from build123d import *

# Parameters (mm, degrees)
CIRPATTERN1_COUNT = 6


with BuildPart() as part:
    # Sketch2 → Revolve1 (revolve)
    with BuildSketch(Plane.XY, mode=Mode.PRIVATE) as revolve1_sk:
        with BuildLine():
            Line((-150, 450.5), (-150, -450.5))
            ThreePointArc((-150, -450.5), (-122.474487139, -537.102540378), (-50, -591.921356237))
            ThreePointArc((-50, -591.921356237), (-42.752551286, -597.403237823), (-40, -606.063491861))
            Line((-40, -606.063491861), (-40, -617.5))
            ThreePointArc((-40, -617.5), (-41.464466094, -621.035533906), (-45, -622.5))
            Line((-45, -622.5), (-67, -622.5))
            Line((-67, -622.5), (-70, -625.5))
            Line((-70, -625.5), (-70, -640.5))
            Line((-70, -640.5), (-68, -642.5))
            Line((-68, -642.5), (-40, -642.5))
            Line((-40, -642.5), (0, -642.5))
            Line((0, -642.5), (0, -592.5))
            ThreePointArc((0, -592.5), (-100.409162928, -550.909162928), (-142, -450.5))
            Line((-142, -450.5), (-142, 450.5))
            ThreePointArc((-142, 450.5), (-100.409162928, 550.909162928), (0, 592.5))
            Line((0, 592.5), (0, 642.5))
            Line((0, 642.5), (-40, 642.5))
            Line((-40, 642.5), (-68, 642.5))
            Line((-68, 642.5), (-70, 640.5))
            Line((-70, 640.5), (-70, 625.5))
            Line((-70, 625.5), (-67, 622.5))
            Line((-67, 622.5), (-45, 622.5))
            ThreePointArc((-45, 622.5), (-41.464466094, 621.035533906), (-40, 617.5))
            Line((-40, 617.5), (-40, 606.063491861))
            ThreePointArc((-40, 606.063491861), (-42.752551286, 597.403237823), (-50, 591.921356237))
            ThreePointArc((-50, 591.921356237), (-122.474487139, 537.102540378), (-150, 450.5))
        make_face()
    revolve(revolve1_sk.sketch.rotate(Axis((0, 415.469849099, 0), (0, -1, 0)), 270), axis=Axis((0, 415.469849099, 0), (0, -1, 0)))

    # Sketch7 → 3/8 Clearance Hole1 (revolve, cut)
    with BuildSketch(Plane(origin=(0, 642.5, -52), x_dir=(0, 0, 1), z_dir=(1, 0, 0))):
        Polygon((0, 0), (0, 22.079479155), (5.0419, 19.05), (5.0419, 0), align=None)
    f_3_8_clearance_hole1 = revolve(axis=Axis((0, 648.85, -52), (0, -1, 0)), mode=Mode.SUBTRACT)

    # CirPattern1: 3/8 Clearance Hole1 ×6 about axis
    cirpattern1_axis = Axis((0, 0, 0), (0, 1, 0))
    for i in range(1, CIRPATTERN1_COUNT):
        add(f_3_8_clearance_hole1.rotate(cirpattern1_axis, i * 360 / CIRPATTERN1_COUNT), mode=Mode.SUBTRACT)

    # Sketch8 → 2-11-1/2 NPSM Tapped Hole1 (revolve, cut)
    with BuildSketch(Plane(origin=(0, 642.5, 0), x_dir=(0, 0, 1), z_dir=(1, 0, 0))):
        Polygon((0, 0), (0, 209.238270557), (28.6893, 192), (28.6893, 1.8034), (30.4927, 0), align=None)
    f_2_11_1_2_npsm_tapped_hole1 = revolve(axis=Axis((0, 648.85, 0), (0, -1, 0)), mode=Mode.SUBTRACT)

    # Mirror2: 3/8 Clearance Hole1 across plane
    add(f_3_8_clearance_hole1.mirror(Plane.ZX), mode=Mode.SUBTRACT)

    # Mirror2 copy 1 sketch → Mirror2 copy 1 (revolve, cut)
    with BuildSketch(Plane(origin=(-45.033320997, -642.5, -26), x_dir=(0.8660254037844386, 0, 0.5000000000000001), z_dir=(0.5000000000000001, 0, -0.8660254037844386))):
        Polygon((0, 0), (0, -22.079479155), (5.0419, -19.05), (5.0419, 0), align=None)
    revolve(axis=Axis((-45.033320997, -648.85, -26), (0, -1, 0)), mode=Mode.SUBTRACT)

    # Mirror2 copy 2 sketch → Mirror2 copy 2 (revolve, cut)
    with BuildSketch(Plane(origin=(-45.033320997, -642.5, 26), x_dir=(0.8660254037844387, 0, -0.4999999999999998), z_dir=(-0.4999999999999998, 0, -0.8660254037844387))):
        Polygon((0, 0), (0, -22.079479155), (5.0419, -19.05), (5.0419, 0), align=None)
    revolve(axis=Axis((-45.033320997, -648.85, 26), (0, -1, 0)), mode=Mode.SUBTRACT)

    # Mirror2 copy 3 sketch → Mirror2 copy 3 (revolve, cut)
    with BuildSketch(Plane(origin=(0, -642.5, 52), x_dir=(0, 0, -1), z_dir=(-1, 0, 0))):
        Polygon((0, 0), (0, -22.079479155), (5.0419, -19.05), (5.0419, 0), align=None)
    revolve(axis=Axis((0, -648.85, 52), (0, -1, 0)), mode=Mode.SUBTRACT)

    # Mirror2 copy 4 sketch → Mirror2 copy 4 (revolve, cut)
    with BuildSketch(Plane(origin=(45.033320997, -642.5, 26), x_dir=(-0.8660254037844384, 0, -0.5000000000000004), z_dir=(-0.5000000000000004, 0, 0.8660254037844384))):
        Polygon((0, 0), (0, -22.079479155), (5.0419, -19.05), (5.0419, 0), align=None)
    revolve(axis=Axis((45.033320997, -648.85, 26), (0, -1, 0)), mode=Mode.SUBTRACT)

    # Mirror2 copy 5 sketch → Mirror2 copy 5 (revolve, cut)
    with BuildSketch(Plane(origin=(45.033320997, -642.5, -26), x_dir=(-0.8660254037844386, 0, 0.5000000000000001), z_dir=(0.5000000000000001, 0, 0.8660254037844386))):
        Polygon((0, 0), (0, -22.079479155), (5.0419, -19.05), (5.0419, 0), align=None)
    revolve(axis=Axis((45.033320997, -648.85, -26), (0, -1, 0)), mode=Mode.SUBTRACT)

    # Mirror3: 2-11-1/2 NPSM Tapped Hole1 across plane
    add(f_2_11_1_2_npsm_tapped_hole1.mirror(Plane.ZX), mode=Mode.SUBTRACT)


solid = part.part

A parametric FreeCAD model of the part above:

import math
import FreeCAD as App
import Part
import Sketcher
from FreeCAD import Vector
Q = App.Units.Quantity


def add_polygon(sketch, points):
    """Adds a closed chain of lines whose ends are joined by coincident constraints."""
    first, n = sketch.GeometryCount, len(points)
    for a, b in zip(points, points[1:] + points[:1]):
        sketch.addGeometry(Part.LineSegment(App.Vector(*a, 0), App.Vector(*b, 0)), False)
    for i in range(n):
        sketch.addConstraint(Sketcher.Constraint("Coincident", first + i, 2, first + (i + 1) % n, 1))

doc = App.newDocument("Part")
params = doc.addObject("Spreadsheet::Sheet", "Params")
for row, (alias, value) in enumerate([
    ("sketch1_radius", "150 mm"),
    ("sketch1_radius2", "15 mm"),
    ("sketch1_radius3", "5 mm"),
    ("sketch1_radius4", "142 mm"),
    ("sketch1_width", "22 mm"),
    ("revolution_angle", "360 deg"),
    ("sketch2_width", "19.05 mm"),
    ("groove_angle", "360 deg"),
    ("groove2_angle", "360 deg"),
    ("sketch4_height", "19.05 mm"),
    ("groove3_angle", "360 deg"),
    ("sketch5_height", "19.05 mm"),
    ("groove4_angle", "360 deg"),
    ("sketch6_width", "19.05 mm"),
    ("groove5_angle", "360 deg"),
    ("sketch7_height", "19.05 mm"),
    ("groove6_angle", "360 deg"),
    ("sketch8_height", "19.05 mm"),
    ("groove7_angle", "360 deg"),
], start=1):
    params.set(f"A{row}", alias)
    params.set(f"B{row}", "=" + value)
    params.setAlias(f"B{row}", alias)

body = doc.addObject("PartDesign::Body", "Body")

sketch1 = body.newObject("Sketcher::SketchObject", "Sketch")
sketch1.AttachmentSupport = (doc.getObject("XY_Plane"), [""])
sketch1.MapMode = "FlatFace"
sketch1.addGeometry([
    Part.LineSegment(Vector(-150, 450.5, 0), Vector(-150, -450.5, 0)),
    Part.ArcOfCircle(Part.Circle(Vector(0, -450.5, 0), Vector(0, 0, 1), 150), math.radians(-180), math.radians(-109.471221)),
    Part.ArcOfCircle(Part.Circle(Vector(-55, -606.063492, 0), Vector(0, 0, 1), 15), math.radians(0), math.radians(70.528779)),
    Part.LineSegment(Vector(-40, -606.063492, 0), Vector(-40, -617.5, 0)),
    Part.ArcOfCircle(Part.Circle(Vector(-45, -617.5, 0), Vector(0, 0, 1), 5), math.radians(-90), math.radians(0)),
    Part.LineSegment(Vector(-45, -622.5, 0), Vector(-67, -622.5, 0)),
    Part.LineSegment(Vector(-67, -622.5, 0), Vector(-70, -625.5, 0)),
    Part.LineSegment(Vector(-70, -625.5, 0), Vector(-70, -640.5, 0)),
    Part.LineSegment(Vector(-70, -640.5, 0), Vector(-68, -642.5, 0)),
    Part.LineSegment(Vector(-68, -642.5, 0), Vector(0, -642.5, 0)),
    Part.LineSegment(Vector(0, -642.5, 0), Vector(0, -592.5, 0)),
    Part.ArcOfCircle(Part.Circle(Vector(0, -450.5, 0), Vector(0, 0, 1), 142), math.radians(-180), math.radians(-90)),
    Part.LineSegment(Vector(-142, -450.5, 0), Vector(-142, 450.5, 0)),
    Part.ArcOfCircle(Part.Circle(Vector(0, 450.5, 0), Vector(0, 0, 1), 142), math.radians(90), math.radians(180)),
    Part.LineSegment(Vector(0, 592.5, 0), Vector(0, 642.5, 0)),
    Part.LineSegment(Vector(0, 642.5, 0), Vector(-68, 642.5, 0)),
    Part.LineSegment(Vector(-68, 642.5, 0), Vector(-70, 640.5, 0)),
    Part.LineSegment(Vector(-70, 640.5, 0), Vector(-70, 625.5, 0)),
    Part.LineSegment(Vector(-70, 625.5, 0), Vector(-67, 622.5, 0)),
    Part.LineSegment(Vector(-67, 622.5, 0), Vector(-45, 622.5, 0)),
    Part.ArcOfCircle(Part.Circle(Vector(-45, 617.5, 0), Vector(0, 0, 1), 5), math.radians(0), math.radians(90)),
    Part.LineSegment(Vector(-40, 617.5, 0), Vector(-40, 606.063492, 0)),
    Part.ArcOfCircle(Part.Circle(Vector(-55, 606.063492, 0), Vector(0, 0, 1), 15), math.radians(-70.528779), math.radians(0)),
    Part.ArcOfCircle(Part.Circle(Vector(0, 450.5, 0), Vector(0, 0, 1), 150), math.radians(109.471221), math.radians(180)),
], False)
sketch1.addConstraint([
    Sketcher.Constraint("Tangent", 0, 2, 1, 1),
    Sketcher.Constraint("Tangent", 1, 2, 2, 2),
    Sketcher.Constraint("Tangent", 2, 1, 3, 1),
    Sketcher.Constraint("Tangent", 3, 2, 4, 2),
    Sketcher.Constraint("Tangent", 4, 1, 5, 1),
    Sketcher.Constraint("Coincident", 5, 2, 6, 1),
    Sketcher.Constraint("Coincident", 6, 2, 7, 1),
    Sketcher.Constraint("Coincident", 7, 2, 8, 1),
    Sketcher.Constraint("Coincident", 8, 2, 9, 1),
    Sketcher.Constraint("Coincident", 9, 2, 10, 1),
    Sketcher.Constraint("Coincident", 10, 2, 11, 2),
    Sketcher.Constraint("Tangent", 11, 1, 12, 1),
    Sketcher.Constraint("Tangent", 12, 2, 13, 2),
    Sketcher.Constraint("Coincident", 13, 1, 14, 1),
    Sketcher.Constraint("Coincident", 14, 2, 15, 1),
    Sketcher.Constraint("Coincident", 15, 2, 16, 1),
    Sketcher.Constraint("Coincident", 16, 2, 17, 1),
    Sketcher.Constraint("Coincident", 17, 2, 18, 1),
    Sketcher.Constraint("Coincident", 18, 2, 19, 1),
    Sketcher.Constraint("Tangent", 19, 2, 20, 2),
    Sketcher.Constraint("Tangent", 20, 1, 21, 1),
    Sketcher.Constraint("Tangent", 21, 2, 22, 2),
    Sketcher.Constraint("Tangent", 22, 1, 23, 1),
    Sketcher.Constraint("Tangent", 23, 2, 0, 1),
    Sketcher.Constraint("Vertical", 0),
    Sketcher.Constraint("Vertical", 3),
    Sketcher.Constraint("Horizontal", 5),
    Sketcher.Constraint("Vertical", 7),
    Sketcher.Constraint("Horizontal", 9),
    Sketcher.Constraint("Vertical", 10),
    Sketcher.Constraint("Vertical", 12),
    Sketcher.Constraint("Vertical", 14),
    Sketcher.Constraint("Horizontal", 15),
    Sketcher.Constraint("Vertical", 17),
    Sketcher.Constraint("Horizontal", 19),
    Sketcher.Constraint("Vertical", 21),
    Sketcher.Constraint("Coincident", 11, 3, 1, 3),
    Sketcher.Constraint("Coincident", 23, 3, 13, 3),
    Sketcher.Constraint("Equal", 11, 13),
    Sketcher.Constraint("Equal", 4, 20),
    Sketcher.Constraint("Equal", 2, 22),
    Sketcher.Constraint("Symmetric", 1, 3, 13, 3, -1, 1),
    Sketcher.Constraint("Symmetric", 9, 2, 14, 2, -1, 1),
    Sketcher.Constraint("Symmetric", 4, 3, 20, 3, -1),
    Sketcher.Constraint("Symmetric", 7, 2, 16, 2, -1),
    Sketcher.Constraint("PointOnObject", 9, 2, -2),
    Sketcher.Constraint("Perpendicular", 6, 8),
    Sketcher.Constraint("Perpendicular", 8, 16),
    Sketcher.Constraint("Perpendicular", 16, 18),
    Sketcher.Constraint("Vertical", 8, 2, 15, 2),
    Sketcher.Constraint("Vertical", 5, 2, 18, 2),
    Sketcher.Constraint("Radius", 1, Q("150 mm")),
    Sketcher.Constraint("Radius", 2, Q("15 mm")),
    Sketcher.Constraint("Radius", 4, Q("5 mm")),
    Sketcher.Constraint("Radius", 11, Q("142 mm")),
    Sketcher.Constraint("DistanceX", 5, 2, 5, 1, Q("22 mm")),
    Sketcher.Constraint("DistanceX", 9, 1, 9, 2, Q("68 mm")),
    Sketcher.Constraint("DistanceY", 0, 2, 0, 1, Q("901 mm")),
    Sketcher.Constraint("DistanceY", 7, 2, 7, 1, Q("15 mm")),
    Sketcher.Constraint("DistanceY", 10, 1, 10, 2, Q("50 mm")),
    Sketcher.Constraint("DistanceX", 2, 3, -1, 1, Q("55 mm")),
    Sketcher.Constraint("DistanceX", 6, 2, -1, 1, Q("70 mm")),
])
sketch1.setExpression("Constraints[51]", "Params.sketch1_radius")
sketch1.setExpression("Constraints[52]", "Params.sketch1_radius2")
sketch1.setExpression("Constraints[53]", "Params.sketch1_radius3")
sketch1.setExpression("Constraints[54]", "Params.sketch1_radius4")
sketch1.setExpression("Constraints[55]", "Params.sketch1_width")
revolution = body.newObject("PartDesign::Revolution", "Revolution")
revolution.Profile = sketch1
revolution.ReferenceAxis = (sketch1, ["V_Axis"])
revolution.setExpression("Angle", "Params.revolution_angle")

sketch2 = body.newObject("Sketcher::SketchObject", "Sketch001")
sketch2.AttachmentSupport = (doc.getObject("YZ_Plane"), [""])
sketch2.MapMode = "FlatFace"
add_polygon(sketch2, [(620.420521, -52), (642.5, -52), (642.5, -46.9581), (623.45, -46.9581)])
sketch2.addGeometry(Part.LineSegment(Vector(642.5, -52, 0), Vector(620.420521, -52, 0)), True)
sketch2.addConstraint([
    Sketcher.Constraint("Horizontal", 0),
    Sketcher.Constraint("Vertical", 1),
    Sketcher.Constraint("Horizontal", 2),
    Sketcher.Constraint("Horizontal", 4),
    Sketcher.Constraint("Coincident", 4, 1, 0, 2),
    Sketcher.Constraint("Equal", 0, 4),
    Sketcher.Constraint("Angle", 3, Q("-121 deg")),
    Sketcher.Constraint("DistanceY", 0, 2, -1, 1, Q("52 mm")),
    Sketcher.Constraint("DistanceX", 2, 2, 2, 1, Q("19.05 mm")),
    Sketcher.Constraint("DistanceX", -1, 1, 0, 2, Q("642.5 mm")),
    Sketcher.Constraint("DistanceY", 1, 1, 1, 2, Q("5.0419 mm")),
])
sketch2.setExpression("Constraints[12]", "Params.sketch2_width")
groove = body.newObject("PartDesign::Groove", "Groove")
groove.Profile = sketch2
groove.ReferenceAxis = (sketch2, ["Axis0"])
groove.setExpression("Angle", "Params.groove_angle")
doc.recompute()

polarpattern = body.newObject("PartDesign::PolarPattern", "PolarPattern")
polarpattern.Originals = [groove]
polarpattern.Axis = (doc.getObject("Y_Axis"), [""])
polarpattern.Angle = 360
polarpattern.Occurrences = 6
body.Tip = polarpattern

sketch3 = body.newObject("Sketcher::SketchObject", "Sketch002")
sketch3.AttachmentSupport = (doc.getObject("YZ_Plane"), [""])
sketch3.MapMode = "FlatFace"
add_polygon(sketch3, [(433.261729, 0), (642.5, 0), (642.5, 30.4927), (640.6966, 28.6893), (450.5, 28.6893)])
sketch3.addConstraint([
    Sketcher.Constraint("Horizontal", 0),
    Sketcher.Constraint("Vertical", 1),
    Sketcher.Constraint("Horizontal", 3),
    Sketcher.Constraint("PointOnObject", 0, 2, -1),
    Sketcher.Constraint("Angle", 2, Q("-135 deg")),
    Sketcher.Constraint("Angle", 4, Q("-121 deg")),
    Sketcher.Constraint("DistanceX", 3, 2, 1, 2, Q("192 mm")),
    Sketcher.Constraint("DistanceX", -1, 1, 0, 2, Q("642.5 mm")),
    Sketcher.Constraint("DistanceX", 3, 2, 3, 1, Q("190.1966 mm")),
    Sketcher.Constraint("DistanceY", 1, 1, 1, 2, Q("30.4927 mm")),
])
groove2 = body.newObject("PartDesign::Groove", "Groove001")
groove2.Profile = sketch3
groove2.ReferenceAxis = (sketch3, ["H_Axis"])
groove2.setExpression("Angle", "Params.groove2_angle")
doc.recompute()

mirrored = body.newObject("PartDesign::Mirrored", "Mirrored")
mirrored.Originals = [groove]
mirrored.MirrorPlane = (doc.getObject("XZ_Plane"), [""])
body.Tip = mirrored

sketch4 = body.newObject("Sketcher::SketchObject", "Sketch003")
sketch4.Placement = App.Placement(Vector(-45.033321, -642.5, -26), App.Rotation(Vector(0.866025404, 0, 0.5), Vector(0, -1, 0), Vector(0.5, 0, -0.866025404), "ZXY"))
add_polygon(sketch4, [(0, 0), (0, -22.079479), (5.0419, -19.05), (5.0419, 0)])
sketch4.addConstraint([
    Sketcher.Constraint("Vertical", 0),
    Sketcher.Constraint("Vertical", 2),
    Sketcher.Constraint("Horizontal", 3),
    Sketcher.Constraint("Coincident", 3, 2, -1, 1),
    Sketcher.Constraint("Angle", 1, Q("31 deg")),
    Sketcher.Constraint("DistanceY", 2, 1, 2, 2, Q("19.05 mm")),
    Sketcher.Constraint("DistanceX", 3, 2, 3, 1, Q("5.0419 mm")),
])
sketch4.setExpression("Constraints[9]", "Params.sketch4_height")
groove3 = body.newObject("PartDesign::Groove", "Groove002")
groove3.Profile = sketch4
groove3.ReferenceAxis = (sketch4, ["V_Axis"])
groove3.setExpression("Angle", "Params.groove3_angle")

sketch5 = body.newObject("Sketcher::SketchObject", "Sketch004")
sketch5.Placement = App.Placement(Vector(-45.033321, -642.5, 26), App.Rotation(Vector(0.866025404, 0, -0.5), Vector(0, -1, 0), Vector(-0.5, 0, -0.866025404), "ZXY"))
add_polygon(sketch5, [(0, 0), (0, -22.079479), (5.0419, -19.05), (5.0419, 0)])
sketch5.addConstraint([
    Sketcher.Constraint("Vertical", 0),
    Sketcher.Constraint("Vertical", 2),
    Sketcher.Constraint("Horizontal", 3),
    Sketcher.Constraint("Coincident", 3, 2, -1, 1),
    Sketcher.Constraint("Angle", 1, Q("31 deg")),
    Sketcher.Constraint("DistanceY", 2, 1, 2, 2, Q("19.05 mm")),
    Sketcher.Constraint("DistanceX", 3, 2, 3, 1, Q("5.0419 mm")),
])
sketch5.setExpression("Constraints[9]", "Params.sketch5_height")
groove4 = body.newObject("PartDesign::Groove", "Groove003")
groove4.Profile = sketch5
groove4.ReferenceAxis = (sketch5, ["V_Axis"])
groove4.setExpression("Angle", "Params.groove4_angle")

sketch6 = body.newObject("Sketcher::SketchObject", "Sketch005")
sketch6.AttachmentSupport = (doc.getObject("YZ_Plane"), [""])
sketch6.MapMode = "FlatFace"
add_polygon(sketch6, [(-642.5, 52), (-620.420521, 52), (-623.45, 46.9581), (-642.5, 46.9581)])
sketch6.addGeometry(Part.LineSegment(Vector(-620.420521, 52, 0), Vector(-642.5, 52, 0)), True)
sketch6.addConstraint([
    Sketcher.Constraint("Horizontal", 0),
    Sketcher.Constraint("Horizontal", 2),
    Sketcher.Constraint("Vertical", 3),
    Sketcher.Constraint("Horizontal", 4),
    Sketcher.Constraint("Coincident", 4, 1, 0, 2),
    Sketcher.Constraint("Vertical", 2, 2, 4, 2),
    Sketcher.Constraint("Angle", 1, Q("-121 deg")),
    Sketcher.Constraint("DistanceY", -1, 1, 0, 2, Q("52 mm")),
    Sketcher.Constraint("DistanceX", 2, 2, 2, 1, Q("19.05 mm")),
    Sketcher.Constraint("DistanceX", 2, 2, -1, 1, Q("642.5 mm")),
    Sketcher.Constraint("DistanceY", 3, 1, 3, 2, Q("5.0419 mm")),
])
sketch6.setExpression("Constraints[12]", "Params.sketch6_width")
groove5 = body.newObject("PartDesign::Groove", "Groove004")
groove5.Profile = sketch6
groove5.ReferenceAxis = (sketch6, ["Axis0"])
groove5.setExpression("Angle", "Params.groove5_angle")

sketch7 = body.newObject("Sketcher::SketchObject", "Sketch006")
sketch7.Placement = App.Placement(Vector(45.033321, -642.5, 26), App.Rotation(Vector(-0.866025404, 0, -0.5), Vector(0, -1, 0), Vector(-0.5, 0, 0.866025404), "ZXY"))
add_polygon(sketch7, [(0, 0), (0, -22.079479), (5.0419, -19.05), (5.0419, 0)])
sketch7.addConstraint([
    Sketcher.Constraint("Vertical", 0),
    Sketcher.Constraint("Vertical", 2),
    Sketcher.Constraint("Horizontal", 3),
    Sketcher.Constraint("Coincident", 3, 2, -1, 1),
    Sketcher.Constraint("Angle", 1, Q("31 deg")),
    Sketcher.Constraint("DistanceY", 2, 1, 2, 2, Q("19.05 mm")),
    Sketcher.Constraint("DistanceX", 3, 2, 3, 1, Q("5.0419 mm")),
])
sketch7.setExpression("Constraints[9]", "Params.sketch7_height")
groove6 = body.newObject("PartDesign::Groove", "Groove005")
groove6.Profile = sketch7
groove6.ReferenceAxis = (sketch7, ["V_Axis"])
groove6.setExpression("Angle", "Params.groove6_angle")

sketch8 = body.newObject("Sketcher::SketchObject", "Sketch007")
sketch8.Placement = App.Placement(Vector(45.033321, -642.5, -26), App.Rotation(Vector(-0.866025404, 0, 0.5), Vector(0, -1, 0), Vector(0.5, 0, 0.866025404), "ZXY"))
add_polygon(sketch8, [(0, 0), (0, -22.079479), (5.0419, -19.05), (5.0419, 0)])
sketch8.addConstraint([
    Sketcher.Constraint("Vertical", 0),
    Sketcher.Constraint("Vertical", 2),
    Sketcher.Constraint("Horizontal", 3),
    Sketcher.Constraint("Coincident", 3, 2, -1, 1),
    Sketcher.Constraint("Angle", 1, Q("31 deg")),
    Sketcher.Constraint("DistanceY", 2, 1, 2, 2, Q("19.05 mm")),
    Sketcher.Constraint("DistanceX", 3, 2, 3, 1, Q("5.0419 mm")),
])
sketch8.setExpression("Constraints[9]", "Params.sketch8_height")
groove7 = body.newObject("PartDesign::Groove", "Groove006")
groove7.Profile = sketch8
groove7.ReferenceAxis = (sketch8, ["V_Axis"])
groove7.setExpression("Angle", "Params.groove7_angle")
doc.recompute()

mirrored2 = body.newObject("PartDesign::Mirrored", "Mirrored001")
mirrored2.Originals = [groove2]
mirrored2.MirrorPlane = (doc.getObject("XZ_Plane"), [""])
body.Tip = mirrored2

doc.recompute()
